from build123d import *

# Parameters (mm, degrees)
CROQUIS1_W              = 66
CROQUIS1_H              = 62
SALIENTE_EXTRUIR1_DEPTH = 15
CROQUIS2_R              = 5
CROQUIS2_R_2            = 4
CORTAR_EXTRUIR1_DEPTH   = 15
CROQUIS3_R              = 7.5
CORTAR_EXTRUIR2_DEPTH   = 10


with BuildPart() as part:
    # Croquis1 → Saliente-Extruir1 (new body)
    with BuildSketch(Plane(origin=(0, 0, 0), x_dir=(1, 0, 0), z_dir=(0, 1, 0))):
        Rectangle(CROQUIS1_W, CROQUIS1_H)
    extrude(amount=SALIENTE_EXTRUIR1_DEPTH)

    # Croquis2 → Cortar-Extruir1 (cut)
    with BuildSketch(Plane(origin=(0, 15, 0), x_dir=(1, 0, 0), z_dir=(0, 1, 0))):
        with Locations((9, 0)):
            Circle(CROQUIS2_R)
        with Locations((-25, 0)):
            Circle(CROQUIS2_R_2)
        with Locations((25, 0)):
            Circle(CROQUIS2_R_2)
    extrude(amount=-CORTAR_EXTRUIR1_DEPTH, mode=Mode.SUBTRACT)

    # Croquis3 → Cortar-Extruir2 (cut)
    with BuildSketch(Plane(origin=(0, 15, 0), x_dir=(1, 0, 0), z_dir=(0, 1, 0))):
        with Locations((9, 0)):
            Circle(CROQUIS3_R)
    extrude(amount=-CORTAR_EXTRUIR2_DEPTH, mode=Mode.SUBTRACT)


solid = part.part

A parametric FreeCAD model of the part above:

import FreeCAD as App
import Part
import Sketcher


def add_polygon(sketch, points):
    """Adds a closed chain of lines whose ends are joined by coincident constraints."""
    first, n = sketch.GeometryCount, len(points)
    for a, b in zip(points, points[1:] + points[:1]):
        sketch.addGeometry(Part.LineSegment(App.Vector(*a, 0), App.Vector(*b, 0)), False)
    for i in range(n):
        sketch.addConstraint(Sketcher.Constraint("Coincident", first + i, 2, first + (i + 1) % n, 1))

doc = App.newDocument("Part")
body = doc.addObject("PartDesign::Body", "Body")

# Sketch on XZ plane
sketch1 = doc.addObject("Sketcher::SketchObject", "Sketch")
body.addObject(sketch1)
sketch1.AttachmentSupport = (doc.XZ_Plane, [""])
sketch1.MapMode = "FlatFace"
add_polygon(sketch1, [(-33, -31), (-33, 31), (33, 31), (33, -31)])  # lines 0-3
sketch1.addConstraint([
    Sketcher.Constraint("Vertical", 0),
    Sketcher.Constraint("Horizontal", 1),
    Sketcher.Constraint("Vertical", 2),
    Sketcher.Constraint("Horizontal", 3),
    Sketcher.Constraint("Symmetric", 0, 2, 2, 2, -1, 1),
    Sketcher.Constraint("DistanceX", 1, 1, 1, 2, 66.0),
    Sketcher.Constraint("DistanceY", 0, 1, 0, 2, 62.0),
])
pad1 = doc.addObject("PartDesign::Pad", "Pad")
body.addObject(pad1)
pad1.Profile = sketch1
pad1.Length = 15
pad1.Reversed = True

# Sketch on XZ plane
sketch2 = doc.addObject("Sketcher::SketchObject", "Sketch001")
body.addObject(sketch2)
sketch2.AttachmentSupport = (doc.XZ_Plane, [""])
sketch2.MapMode = "FlatFace"
sketch2.AttachmentOffset = App.Placement(App.Vector(0, 0, -15), App.Rotation())
sketch2.addGeometry([
    Part.Circle(App.Vector(9, 0, 0), App.Vector(0, 0, 1), 5),
    Part.Circle(App.Vector(-25, 0, 0), App.Vector(0, 0, 1), 4),
    Part.Circle(App.Vector(25, 0, 0), App.Vector(0, 0, 1), 4),
], False)
sketch2.addConstraint([
    Sketcher.Constraint("Equal", 1, 2),
    Sketcher.Constraint("Symmetric", 1, 3, 2, 3, -1, 1),
    Sketcher.Constraint("PointOnObject", 0, 3, -1),
    Sketcher.Constraint("PointOnObject", 1, 3, -1),
    Sketcher.Constraint("Diameter", 0, 10.0),
    Sketcher.Constraint("Diameter", 1, 8.0),
    Sketcher.Constraint("DistanceX", -1, 1, 0, 3, 9.0),
    Sketcher.Constraint("DistanceX", 1, 3, -1, 1, 25.0),
])
pocket1 = doc.addObject("PartDesign::Pocket", "Pocket")
body.addObject(pocket1)
pocket1.Profile = sketch2
pocket1.Length = 15
pocket1.Reversed = True

# Sketch on XZ plane
sketch3 = doc.addObject("Sketcher::SketchObject", "Sketch002")
body.addObject(sketch3)
sketch3.AttachmentSupport = (doc.XZ_Plane, [""])
sketch3.MapMode = "FlatFace"
sketch3.AttachmentOffset = App.Placement(App.Vector(0, 0, -15), App.Rotation())
sketch3.addGeometry(Part.Circle(App.Vector(9, 0, 0), App.Vector(0, 0, 1), 8), False)
sketch3.addConstraint([
    Sketcher.Constraint("PointOnObject", 0, 3, -1),
    Sketcher.Constraint("Diameter", 0, 15.0),
    Sketcher.Constraint("DistanceX", -1, 1, 0, 3, 9.0),
])
pocket2 = doc.addObject("PartDesign::Pocket", "Pocket001")
body.addObject(pocket2)
pocket2.Profile = sketch3
pocket2.Length = 10
pocket2.Reversed = True

doc.recompute()
